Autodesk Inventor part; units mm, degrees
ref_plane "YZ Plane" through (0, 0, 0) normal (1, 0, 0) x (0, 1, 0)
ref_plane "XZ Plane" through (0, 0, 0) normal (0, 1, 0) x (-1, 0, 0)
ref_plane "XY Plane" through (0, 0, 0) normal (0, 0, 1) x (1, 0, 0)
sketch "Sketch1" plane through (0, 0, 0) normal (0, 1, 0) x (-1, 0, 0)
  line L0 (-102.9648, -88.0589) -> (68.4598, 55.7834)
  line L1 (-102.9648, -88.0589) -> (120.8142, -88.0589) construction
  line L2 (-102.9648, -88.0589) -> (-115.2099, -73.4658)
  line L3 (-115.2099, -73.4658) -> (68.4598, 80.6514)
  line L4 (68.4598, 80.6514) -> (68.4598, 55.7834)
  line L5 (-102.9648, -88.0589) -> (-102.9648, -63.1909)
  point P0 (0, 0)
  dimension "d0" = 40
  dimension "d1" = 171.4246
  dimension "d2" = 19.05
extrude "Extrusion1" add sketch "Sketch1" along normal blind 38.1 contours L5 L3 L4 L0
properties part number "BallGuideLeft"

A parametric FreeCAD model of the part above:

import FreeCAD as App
import Part
import Sketcher
from FreeCAD import Vector
Q = App.Units.Quantity

doc = App.newDocument("Part")
body = doc.addObject("PartDesign::Body", "Body")

# Sketch on XZ plane
sketch1 = body.newObject("Sketcher::SketchObject", "Sketch")
sketch1.AttachmentSupport = (doc.getObject("XZ_Plane"), [""])
sketch1.MapMode = "FlatFace"
sketch1.addGeometry([
    Part.LineSegment(Vector(103, -63, 0), Vector(103, -88, 0)),
    Part.LineSegment(Vector(103, -88, 0), Vector(-68, 56, 0)),
    Part.LineSegment(Vector(-68, 56, 0), Vector(-68, 81, 0)),
    Part.LineSegment(Vector(-68, 81, 0), Vector(103, -63, 0)),
], False)
sketch1.addConstraint([
    Sketcher.Constraint("Coincident", 0, 2, 1, 1),
    Sketcher.Constraint("Coincident", 1, 2, 2, 1),
    Sketcher.Constraint("Coincident", 2, 2, 3, 1),
    Sketcher.Constraint("Coincident", 3, 2, 0, 1),
    Sketcher.Constraint("Vertical", 0),
    Sketcher.Constraint("Vertical", 2),
    Sketcher.Constraint("Parallel", 1, 3),
    Sketcher.Constraint("Angle", 3, Q("-40 deg")),
    Sketcher.Constraint("DistanceX", 1, 2, 0, 2, Q("6.749 in")),
    Sketcher.Constraint("DistanceY", 0, 2, 0, 1, 24.868),
    Sketcher.Constraint("DistanceY", -1, 1, 1, 2, Q("2.1962 in")),
    Sketcher.Constraint("DistanceX", -1, 1, 0, 2, 102.9648),
])
pad1 = body.newObject("PartDesign::Pad", "Pad")
pad1.Profile = sketch1
pad1.Length = Q("1.5 in")
pad1.Reversed = True

doc.recompute()
